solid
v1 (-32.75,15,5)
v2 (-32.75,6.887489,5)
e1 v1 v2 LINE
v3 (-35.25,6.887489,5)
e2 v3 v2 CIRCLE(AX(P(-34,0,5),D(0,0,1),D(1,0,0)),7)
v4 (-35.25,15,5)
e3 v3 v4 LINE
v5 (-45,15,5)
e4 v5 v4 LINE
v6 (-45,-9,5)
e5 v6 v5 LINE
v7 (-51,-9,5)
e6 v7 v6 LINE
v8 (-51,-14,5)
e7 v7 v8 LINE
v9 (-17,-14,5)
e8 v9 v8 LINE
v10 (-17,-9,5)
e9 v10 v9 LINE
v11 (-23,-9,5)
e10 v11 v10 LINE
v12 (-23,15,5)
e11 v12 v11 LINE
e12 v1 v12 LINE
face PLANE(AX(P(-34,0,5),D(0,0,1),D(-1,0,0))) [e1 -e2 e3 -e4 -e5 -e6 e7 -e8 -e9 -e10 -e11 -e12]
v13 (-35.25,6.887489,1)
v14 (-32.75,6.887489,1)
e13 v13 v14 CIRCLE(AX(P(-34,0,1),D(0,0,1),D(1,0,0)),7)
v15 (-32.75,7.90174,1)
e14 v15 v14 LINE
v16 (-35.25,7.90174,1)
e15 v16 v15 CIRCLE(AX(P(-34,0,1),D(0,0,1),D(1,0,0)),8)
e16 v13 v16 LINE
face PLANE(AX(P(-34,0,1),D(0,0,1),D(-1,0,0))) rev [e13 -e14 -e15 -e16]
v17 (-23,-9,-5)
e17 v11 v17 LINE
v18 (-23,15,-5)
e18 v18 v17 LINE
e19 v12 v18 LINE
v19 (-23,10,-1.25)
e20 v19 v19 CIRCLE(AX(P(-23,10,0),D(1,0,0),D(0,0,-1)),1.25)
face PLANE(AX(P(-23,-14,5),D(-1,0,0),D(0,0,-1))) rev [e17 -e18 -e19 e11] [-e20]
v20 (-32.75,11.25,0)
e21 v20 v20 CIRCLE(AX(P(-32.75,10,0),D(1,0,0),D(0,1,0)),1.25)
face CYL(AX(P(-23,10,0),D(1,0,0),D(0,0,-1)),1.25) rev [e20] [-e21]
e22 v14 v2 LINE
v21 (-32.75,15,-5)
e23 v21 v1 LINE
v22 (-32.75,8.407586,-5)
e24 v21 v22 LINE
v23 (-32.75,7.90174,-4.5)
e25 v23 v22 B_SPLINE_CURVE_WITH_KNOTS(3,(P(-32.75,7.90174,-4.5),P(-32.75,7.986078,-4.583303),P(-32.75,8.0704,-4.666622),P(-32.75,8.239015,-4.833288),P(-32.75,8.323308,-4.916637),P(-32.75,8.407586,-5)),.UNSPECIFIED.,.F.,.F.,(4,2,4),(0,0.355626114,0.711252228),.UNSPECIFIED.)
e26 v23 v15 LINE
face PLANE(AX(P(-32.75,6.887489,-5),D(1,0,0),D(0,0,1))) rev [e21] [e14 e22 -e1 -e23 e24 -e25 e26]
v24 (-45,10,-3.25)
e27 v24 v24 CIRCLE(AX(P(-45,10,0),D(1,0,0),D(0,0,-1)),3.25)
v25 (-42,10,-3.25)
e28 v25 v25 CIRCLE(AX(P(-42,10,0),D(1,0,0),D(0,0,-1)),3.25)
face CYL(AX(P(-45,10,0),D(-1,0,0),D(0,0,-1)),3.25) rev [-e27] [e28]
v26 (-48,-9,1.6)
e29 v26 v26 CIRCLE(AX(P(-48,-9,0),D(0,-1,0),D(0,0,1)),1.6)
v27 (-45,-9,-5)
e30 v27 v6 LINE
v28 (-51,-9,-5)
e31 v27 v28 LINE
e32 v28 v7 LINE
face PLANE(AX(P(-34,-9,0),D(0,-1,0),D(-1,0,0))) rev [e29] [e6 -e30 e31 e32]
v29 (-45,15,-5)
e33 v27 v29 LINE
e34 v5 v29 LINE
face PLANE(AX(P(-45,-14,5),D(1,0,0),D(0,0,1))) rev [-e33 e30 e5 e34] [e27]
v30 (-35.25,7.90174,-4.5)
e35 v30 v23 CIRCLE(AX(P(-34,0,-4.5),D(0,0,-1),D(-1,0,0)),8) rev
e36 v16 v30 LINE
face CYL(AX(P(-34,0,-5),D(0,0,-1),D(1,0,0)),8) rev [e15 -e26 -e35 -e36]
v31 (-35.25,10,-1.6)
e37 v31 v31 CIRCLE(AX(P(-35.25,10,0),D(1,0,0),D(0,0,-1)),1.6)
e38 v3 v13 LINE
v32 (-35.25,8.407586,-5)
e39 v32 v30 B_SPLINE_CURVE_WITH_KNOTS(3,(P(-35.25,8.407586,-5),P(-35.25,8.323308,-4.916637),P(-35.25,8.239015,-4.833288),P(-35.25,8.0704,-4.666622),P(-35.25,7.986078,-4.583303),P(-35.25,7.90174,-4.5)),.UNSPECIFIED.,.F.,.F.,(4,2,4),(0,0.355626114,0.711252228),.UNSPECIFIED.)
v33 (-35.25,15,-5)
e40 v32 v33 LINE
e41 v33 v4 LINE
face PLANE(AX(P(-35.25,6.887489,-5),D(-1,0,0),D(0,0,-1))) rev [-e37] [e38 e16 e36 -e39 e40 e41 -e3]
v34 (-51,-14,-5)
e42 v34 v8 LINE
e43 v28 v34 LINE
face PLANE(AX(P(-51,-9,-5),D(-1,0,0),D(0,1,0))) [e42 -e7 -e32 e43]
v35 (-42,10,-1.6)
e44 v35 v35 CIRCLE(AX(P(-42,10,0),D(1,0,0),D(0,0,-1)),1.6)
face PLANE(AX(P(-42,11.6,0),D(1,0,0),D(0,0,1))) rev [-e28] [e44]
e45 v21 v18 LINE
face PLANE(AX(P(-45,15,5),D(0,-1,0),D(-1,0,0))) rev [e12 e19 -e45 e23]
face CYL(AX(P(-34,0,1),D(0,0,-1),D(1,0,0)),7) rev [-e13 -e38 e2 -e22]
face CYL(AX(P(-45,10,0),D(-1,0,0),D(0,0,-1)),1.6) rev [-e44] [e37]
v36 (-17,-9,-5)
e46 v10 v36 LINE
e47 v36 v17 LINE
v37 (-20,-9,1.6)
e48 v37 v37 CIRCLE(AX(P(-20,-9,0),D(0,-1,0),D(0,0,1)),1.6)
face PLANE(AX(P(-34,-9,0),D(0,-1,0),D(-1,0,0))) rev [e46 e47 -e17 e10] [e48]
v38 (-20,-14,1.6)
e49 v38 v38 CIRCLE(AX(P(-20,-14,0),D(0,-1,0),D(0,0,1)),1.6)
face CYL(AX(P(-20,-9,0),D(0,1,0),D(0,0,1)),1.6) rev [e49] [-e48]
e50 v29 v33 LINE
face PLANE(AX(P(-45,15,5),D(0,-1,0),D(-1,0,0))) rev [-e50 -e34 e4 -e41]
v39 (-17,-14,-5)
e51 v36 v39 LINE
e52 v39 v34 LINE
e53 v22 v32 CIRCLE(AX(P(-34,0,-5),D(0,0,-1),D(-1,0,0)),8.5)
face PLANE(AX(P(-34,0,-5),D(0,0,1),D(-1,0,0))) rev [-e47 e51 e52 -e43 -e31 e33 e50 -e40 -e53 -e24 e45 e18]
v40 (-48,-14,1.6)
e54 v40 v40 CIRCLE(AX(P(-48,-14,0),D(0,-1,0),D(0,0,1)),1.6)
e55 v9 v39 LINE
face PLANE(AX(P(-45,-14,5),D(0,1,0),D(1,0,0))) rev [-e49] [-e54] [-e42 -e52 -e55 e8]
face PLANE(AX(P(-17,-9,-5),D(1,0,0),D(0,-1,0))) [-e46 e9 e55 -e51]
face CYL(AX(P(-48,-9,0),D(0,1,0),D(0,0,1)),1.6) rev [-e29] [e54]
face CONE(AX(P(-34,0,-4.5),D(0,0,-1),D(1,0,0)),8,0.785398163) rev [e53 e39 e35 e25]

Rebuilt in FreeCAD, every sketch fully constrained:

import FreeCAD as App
import Part
import Sketcher

V = App.Vector
Q = App.Units.Quantity


def edges_at(feature, points):
    """Names of the edges that pass closest to the given points."""
    edges = feature.Shape.Edges
    near = lambda p: min(range(len(edges)), key=lambda i: edges[i].distToShape(Part.Vertex(*p))[0])
    return sorted({f"Edge{near(p) + 1}" for p in points})

doc = App.newDocument("Part")
body = doc.addObject("PartDesign::Body", "Body")

sketch1 = doc.addObject("Sketcher::SketchObject", "Sketch")
body.addObject(sketch1)
sketch1.AttachmentSupport = (doc.XY_Plane, [""])
sketch1.MapMode = "FlatFace"
sketch1.addGeometry([
    Part.LineSegment(V(-11, 15, 0), V(-11, -14, 0)),
    Part.LineSegment(V(-11, -14, 0), V(11, -14, 0)),
    Part.LineSegment(V(11, -14, 0), V(11, 15, 0)),
    Part.LineSegment(V(11, 15, 0), V(-11, 15, 0)),
], False)
sketch1.addConstraint([
    Sketcher.Constraint("Coincident", 0, 2, 1, 1),
    Sketcher.Constraint("Coincident", 1, 2, 2, 1),
    Sketcher.Constraint("Coincident", 2, 2, 3, 1),
    Sketcher.Constraint("Coincident", 3, 2, 0, 1),
    Sketcher.Constraint("Vertical", 0),
    Sketcher.Constraint("Horizontal", 1),
    Sketcher.Constraint("Vertical", 2),
    Sketcher.Constraint("Horizontal", 3),
    Sketcher.Constraint("DistanceX", 1, 1, 1, 2, Q("22 mm")),
    Sketcher.Constraint("DistanceY", 0, 2, 0, 1, Q("29 mm")),
    Sketcher.Constraint("DistanceX", 0, 2, -1, 1, Q("11 mm")),
    Sketcher.Constraint("DistanceY", 0, 2, -1, 1, Q("14 mm")),
])
pad1 = doc.addObject("PartDesign::Pad", "Pad")
body.addObject(pad1)
pad1.Profile = sketch1
pad1.Length = 10
pad1.Midplane = True

sketch2 = doc.addObject("Sketcher::SketchObject", "Sketch001")
body.addObject(sketch2)
sketch2.AttachmentSupport = (doc.XZ_Plane, [""])
sketch2.MapMode = "FlatFace"
sketch2.AttachmentOffset = App.Placement(V(0, 0, 14), App.Rotation())
sketch2.addGeometry([
    Part.LineSegment(V(-17, 5, 0), V(-17, -5, 0)),
    Part.LineSegment(V(-17, -5, 0), V(17, -5, 0)),
    Part.LineSegment(V(17, -5, 0), V(17, 5, 0)),
    Part.LineSegment(V(17, 5, 0), V(-17, 5, 0)),
], False)
sketch2.addConstraint([
    Sketcher.Constraint("Coincident", 0, 2, 1, 1),
    Sketcher.Constraint("Coincident", 1, 2, 2, 1),
    Sketcher.Constraint("Coincident", 2, 2, 3, 1),
    Sketcher.Constraint("Coincident", 3, 2, 0, 1),
    Sketcher.Constraint("Vertical", 0),
    Sketcher.Constraint("Horizontal", 1),
    Sketcher.Constraint("Vertical", 2),
    Sketcher.Constraint("Horizontal", 3),
    Sketcher.Constraint("Symmetric", 0, 2, 2, 2, -1, 1),
    Sketcher.Constraint("DistanceX", 1, 1, 1, 2, Q("34 mm")),
    Sketcher.Constraint("DistanceY", 0, 2, 0, 1, Q("10 mm")),
])
pad2 = doc.addObject("PartDesign::Pad", "Pad001")
body.addObject(pad2)
pad2.Profile = sketch2
pad2.Length = 5
pad2.Reversed = True

sketch3 = doc.addObject("Sketcher::SketchObject", "Sketch002")
body.addObject(sketch3)
sketch3.AttachmentSupport = (doc.XY_Plane, [""])
sketch3.MapMode = "FlatFace"
sketch3.AttachmentOffset = App.Placement(V(0, 0, -5), App.Rotation())
sketch3.addGeometry(Part.Circle(V(0, 0, 0), V(0, 0, 1), 8), False)
sketch3.addConstraint([
    Sketcher.Constraint("Coincident", 0, 3, -1, 1),
    Sketcher.Constraint("Diameter", 0, Q("16 mm")),
])
doc.recompute()
hole = doc.addObject("PartDesign::Hole", "Hole")
body.addObject(hole)
hole.Profile = sketch3
hole.ThreadType = "None"
hole.Diameter = 16
hole.DepthType = "Dimension"
hole.Depth = 6
hole.DrillPoint = "Flat"
hole.Reversed = True

sketch4 = doc.addObject("Sketcher::SketchObject", "Sketch003")
body.addObject(sketch4)
sketch4.AttachmentSupport = (doc.XY_Plane, [""])
sketch4.MapMode = "FlatFace"
sketch4.AttachmentOffset = App.Placement(V(0, 0, 1), App.Rotation())
sketch4.addGeometry(Part.Circle(V(0, 0, 0), V(0, 0, 1), 7), False)
sketch4.addConstraint([
    Sketcher.Constraint("Coincident", 0, 3, -1, 1),
    Sketcher.Constraint("Diameter", 0, Q("14 mm")),
])
doc.recompute()
hole2 = doc.addObject("PartDesign::Hole", "Hole001")
body.addObject(hole2)
hole2.Profile = sketch4
hole2.ThreadType = "None"
hole2.Diameter = 14
hole2.DepthType = "ThroughAll"
hole2.Reversed = True

sketch5 = doc.addObject("Sketcher::SketchObject", "Sketch004")
body.addObject(sketch5)
sketch5.AttachmentSupport = (doc.XZ_Plane, [""])
sketch5.MapMode = "FlatFace"
sketch5.AttachmentOffset = App.Placement(V(0, 0, 9), App.Rotation())
sketch5.addGeometry([
    Part.Circle(V(-14, 0, 0), V(0, 0, 1), 1.6),
    Part.Circle(V(14, 0, 0), V(0, 0, 1), 1.6),
], False)
sketch5.addConstraint([
    Sketcher.Constraint("Equal", 0, 1),
    Sketcher.Constraint("Symmetric", 0, 3, 1, 3, -1, 1),
    Sketcher.Constraint("PointOnObject", 0, 3, -1),
    Sketcher.Constraint("Diameter", 0, Q("3.2 mm")),
    Sketcher.Constraint("DistanceX", 0, 3, -1, 1, Q("14 mm")),
])
doc.recompute()
hole3 = doc.addObject("PartDesign::Hole", "Hole002")
body.addObject(hole3)
hole3.Profile = sketch5
hole3.ThreadType = "None"
hole3.Diameter = 3.2
hole3.DepthType = "ThroughAll"
hole3.Reversed = True

sketch6 = doc.addObject("Sketcher::SketchObject", "Sketch005")
body.addObject(sketch6)
sketch6.AttachmentSupport = (doc.XY_Plane, [""])
sketch6.MapMode = "FlatFace"
sketch6.AttachmentOffset = App.Placement(V(0, 0, 5), App.Rotation())
sketch6.addGeometry([
    Part.LineSegment(V(-1.25, 15, 0), V(-1.25, 6.887489, 0)),
    Part.LineSegment(V(-1.25, 6.887489, 0), V(1.25, 6.887489, 0)),
    Part.LineSegment(V(1.25, 6.887489, 0), V(1.25, 15, 0)),
    Part.LineSegment(V(1.25, 15, 0), V(-1.25, 15, 0)),
], False)
sketch6.addConstraint([
    Sketcher.Constraint("Coincident", 0, 2, 1, 1),
    Sketcher.Constraint("Coincident", 1, 2, 2, 1),
    Sketcher.Constraint("Coincident", 2, 2, 3, 1),
    Sketcher.Constraint("Coincident", 3, 2, 0, 1),
    Sketcher.Constraint("Vertical", 0),
    Sketcher.Constraint("Horizontal", 1),
    Sketcher.Constraint("Vertical", 2),
    Sketcher.Constraint("Horizontal", 3),
    Sketcher.Constraint("DistanceX", 1, 1, 1, 2, Q("2.5 mm")),
    Sketcher.Constraint("DistanceY", -1, 1, 2, 2, Q("15 mm")),
    Sketcher.Constraint("DistanceX", 0, 2, -1, 1, Q("1.25 mm")),
    Sketcher.Constraint("DistanceY", 0, 2, 0, 1, Q("8.112511 mm")),
])
pocket1 = doc.addObject("PartDesign::Pocket", "Pocket")
body.addObject(pocket1)
pocket1.Profile = sketch6
pocket1.Type = "ThroughAll"

sketch7 = doc.addObject("Sketcher::SketchObject", "Sketch006")
body.addObject(sketch7)
sketch7.AttachmentSupport = (doc.YZ_Plane, [""])
sketch7.MapMode = "FlatFace"
sketch7.AttachmentOffset = App.Placement(V(0, 0, 11), App.Rotation())
sketch7.addGeometry(Part.Circle(V(10, 0, 0), V(0, 0, 1), 1.6), False)
sketch7.addConstraint([
    Sketcher.Constraint("PointOnObject", 0, 3, -1),
    Sketcher.Constraint("Diameter", 0, Q("3.2 mm")),
    Sketcher.Constraint("DistanceX", -1, 1, 0, 3, Q("10 mm")),
])
doc.recompute()
hole4 = doc.addObject("PartDesign::Hole", "Hole003")
body.addObject(hole4)
hole4.Profile = sketch7
hole4.ThreadType = "None"
hole4.Diameter = 3.2
hole4.DepthType = "Dimension"
hole4.Depth = 9.75
hole4.DrillPoint = "Flat"
hole4.HoleCutType = "Counterbore"
hole4.HoleCutDiameter = 6.5
hole4.HoleCutDepth = 3
doc.recompute()

chamfer = doc.addObject("PartDesign::Chamfer", "Chamfer")
body.addObject(chamfer)
chamfer.Base = (hole4, edges_at(hole4, [(0, -8, -5)]))
chamfer.Size = 0.5
body2 = doc.addObject("PartDesign::Body", "Body001")
doc.recompute()

mirroring = doc.addObject("Part::Mirroring", "Mirroring")
mirroring.Source = body
mirroring.Base = V(-17, -9, -5)
mirroring.Normal = V(-1, 0, 0)
body2.BaseFeature = mirroring
doc.recompute()

sketch8 = doc.addObject("Sketcher::SketchObject", "Sketch007")
body2.addObject(sketch8)
sketch8.AttachmentSupport = (doc.getObject("YZ_Plane001"), [""])
sketch8.MapMode = "FlatFace"
sketch8.AttachmentOffset = App.Placement(V(0, 0, -23), App.Rotation())
sketch8.addGeometry(Part.Circle(V(10, 0, 0), V(0, 0, 1), 1.25), False)
sketch8.addConstraint([
    Sketcher.Constraint("PointOnObject", 0, 3, -1),
    Sketcher.Constraint("Diameter", 0, Q("2.5 mm")),
    Sketcher.Constraint("DistanceX", -1, 1, 0, 3, Q("10 mm")),
])
doc.recompute()
hole5 = doc.addObject("PartDesign::Hole", "Hole004")
body2.addObject(hole5)
hole5.Profile = sketch8
hole5.ThreadType = "None"
hole5.Diameter = 2.5
hole5.DepthType = "ThroughAll"
body.Visibility = False
mirroring.Visibility = False

doc.recompute()
